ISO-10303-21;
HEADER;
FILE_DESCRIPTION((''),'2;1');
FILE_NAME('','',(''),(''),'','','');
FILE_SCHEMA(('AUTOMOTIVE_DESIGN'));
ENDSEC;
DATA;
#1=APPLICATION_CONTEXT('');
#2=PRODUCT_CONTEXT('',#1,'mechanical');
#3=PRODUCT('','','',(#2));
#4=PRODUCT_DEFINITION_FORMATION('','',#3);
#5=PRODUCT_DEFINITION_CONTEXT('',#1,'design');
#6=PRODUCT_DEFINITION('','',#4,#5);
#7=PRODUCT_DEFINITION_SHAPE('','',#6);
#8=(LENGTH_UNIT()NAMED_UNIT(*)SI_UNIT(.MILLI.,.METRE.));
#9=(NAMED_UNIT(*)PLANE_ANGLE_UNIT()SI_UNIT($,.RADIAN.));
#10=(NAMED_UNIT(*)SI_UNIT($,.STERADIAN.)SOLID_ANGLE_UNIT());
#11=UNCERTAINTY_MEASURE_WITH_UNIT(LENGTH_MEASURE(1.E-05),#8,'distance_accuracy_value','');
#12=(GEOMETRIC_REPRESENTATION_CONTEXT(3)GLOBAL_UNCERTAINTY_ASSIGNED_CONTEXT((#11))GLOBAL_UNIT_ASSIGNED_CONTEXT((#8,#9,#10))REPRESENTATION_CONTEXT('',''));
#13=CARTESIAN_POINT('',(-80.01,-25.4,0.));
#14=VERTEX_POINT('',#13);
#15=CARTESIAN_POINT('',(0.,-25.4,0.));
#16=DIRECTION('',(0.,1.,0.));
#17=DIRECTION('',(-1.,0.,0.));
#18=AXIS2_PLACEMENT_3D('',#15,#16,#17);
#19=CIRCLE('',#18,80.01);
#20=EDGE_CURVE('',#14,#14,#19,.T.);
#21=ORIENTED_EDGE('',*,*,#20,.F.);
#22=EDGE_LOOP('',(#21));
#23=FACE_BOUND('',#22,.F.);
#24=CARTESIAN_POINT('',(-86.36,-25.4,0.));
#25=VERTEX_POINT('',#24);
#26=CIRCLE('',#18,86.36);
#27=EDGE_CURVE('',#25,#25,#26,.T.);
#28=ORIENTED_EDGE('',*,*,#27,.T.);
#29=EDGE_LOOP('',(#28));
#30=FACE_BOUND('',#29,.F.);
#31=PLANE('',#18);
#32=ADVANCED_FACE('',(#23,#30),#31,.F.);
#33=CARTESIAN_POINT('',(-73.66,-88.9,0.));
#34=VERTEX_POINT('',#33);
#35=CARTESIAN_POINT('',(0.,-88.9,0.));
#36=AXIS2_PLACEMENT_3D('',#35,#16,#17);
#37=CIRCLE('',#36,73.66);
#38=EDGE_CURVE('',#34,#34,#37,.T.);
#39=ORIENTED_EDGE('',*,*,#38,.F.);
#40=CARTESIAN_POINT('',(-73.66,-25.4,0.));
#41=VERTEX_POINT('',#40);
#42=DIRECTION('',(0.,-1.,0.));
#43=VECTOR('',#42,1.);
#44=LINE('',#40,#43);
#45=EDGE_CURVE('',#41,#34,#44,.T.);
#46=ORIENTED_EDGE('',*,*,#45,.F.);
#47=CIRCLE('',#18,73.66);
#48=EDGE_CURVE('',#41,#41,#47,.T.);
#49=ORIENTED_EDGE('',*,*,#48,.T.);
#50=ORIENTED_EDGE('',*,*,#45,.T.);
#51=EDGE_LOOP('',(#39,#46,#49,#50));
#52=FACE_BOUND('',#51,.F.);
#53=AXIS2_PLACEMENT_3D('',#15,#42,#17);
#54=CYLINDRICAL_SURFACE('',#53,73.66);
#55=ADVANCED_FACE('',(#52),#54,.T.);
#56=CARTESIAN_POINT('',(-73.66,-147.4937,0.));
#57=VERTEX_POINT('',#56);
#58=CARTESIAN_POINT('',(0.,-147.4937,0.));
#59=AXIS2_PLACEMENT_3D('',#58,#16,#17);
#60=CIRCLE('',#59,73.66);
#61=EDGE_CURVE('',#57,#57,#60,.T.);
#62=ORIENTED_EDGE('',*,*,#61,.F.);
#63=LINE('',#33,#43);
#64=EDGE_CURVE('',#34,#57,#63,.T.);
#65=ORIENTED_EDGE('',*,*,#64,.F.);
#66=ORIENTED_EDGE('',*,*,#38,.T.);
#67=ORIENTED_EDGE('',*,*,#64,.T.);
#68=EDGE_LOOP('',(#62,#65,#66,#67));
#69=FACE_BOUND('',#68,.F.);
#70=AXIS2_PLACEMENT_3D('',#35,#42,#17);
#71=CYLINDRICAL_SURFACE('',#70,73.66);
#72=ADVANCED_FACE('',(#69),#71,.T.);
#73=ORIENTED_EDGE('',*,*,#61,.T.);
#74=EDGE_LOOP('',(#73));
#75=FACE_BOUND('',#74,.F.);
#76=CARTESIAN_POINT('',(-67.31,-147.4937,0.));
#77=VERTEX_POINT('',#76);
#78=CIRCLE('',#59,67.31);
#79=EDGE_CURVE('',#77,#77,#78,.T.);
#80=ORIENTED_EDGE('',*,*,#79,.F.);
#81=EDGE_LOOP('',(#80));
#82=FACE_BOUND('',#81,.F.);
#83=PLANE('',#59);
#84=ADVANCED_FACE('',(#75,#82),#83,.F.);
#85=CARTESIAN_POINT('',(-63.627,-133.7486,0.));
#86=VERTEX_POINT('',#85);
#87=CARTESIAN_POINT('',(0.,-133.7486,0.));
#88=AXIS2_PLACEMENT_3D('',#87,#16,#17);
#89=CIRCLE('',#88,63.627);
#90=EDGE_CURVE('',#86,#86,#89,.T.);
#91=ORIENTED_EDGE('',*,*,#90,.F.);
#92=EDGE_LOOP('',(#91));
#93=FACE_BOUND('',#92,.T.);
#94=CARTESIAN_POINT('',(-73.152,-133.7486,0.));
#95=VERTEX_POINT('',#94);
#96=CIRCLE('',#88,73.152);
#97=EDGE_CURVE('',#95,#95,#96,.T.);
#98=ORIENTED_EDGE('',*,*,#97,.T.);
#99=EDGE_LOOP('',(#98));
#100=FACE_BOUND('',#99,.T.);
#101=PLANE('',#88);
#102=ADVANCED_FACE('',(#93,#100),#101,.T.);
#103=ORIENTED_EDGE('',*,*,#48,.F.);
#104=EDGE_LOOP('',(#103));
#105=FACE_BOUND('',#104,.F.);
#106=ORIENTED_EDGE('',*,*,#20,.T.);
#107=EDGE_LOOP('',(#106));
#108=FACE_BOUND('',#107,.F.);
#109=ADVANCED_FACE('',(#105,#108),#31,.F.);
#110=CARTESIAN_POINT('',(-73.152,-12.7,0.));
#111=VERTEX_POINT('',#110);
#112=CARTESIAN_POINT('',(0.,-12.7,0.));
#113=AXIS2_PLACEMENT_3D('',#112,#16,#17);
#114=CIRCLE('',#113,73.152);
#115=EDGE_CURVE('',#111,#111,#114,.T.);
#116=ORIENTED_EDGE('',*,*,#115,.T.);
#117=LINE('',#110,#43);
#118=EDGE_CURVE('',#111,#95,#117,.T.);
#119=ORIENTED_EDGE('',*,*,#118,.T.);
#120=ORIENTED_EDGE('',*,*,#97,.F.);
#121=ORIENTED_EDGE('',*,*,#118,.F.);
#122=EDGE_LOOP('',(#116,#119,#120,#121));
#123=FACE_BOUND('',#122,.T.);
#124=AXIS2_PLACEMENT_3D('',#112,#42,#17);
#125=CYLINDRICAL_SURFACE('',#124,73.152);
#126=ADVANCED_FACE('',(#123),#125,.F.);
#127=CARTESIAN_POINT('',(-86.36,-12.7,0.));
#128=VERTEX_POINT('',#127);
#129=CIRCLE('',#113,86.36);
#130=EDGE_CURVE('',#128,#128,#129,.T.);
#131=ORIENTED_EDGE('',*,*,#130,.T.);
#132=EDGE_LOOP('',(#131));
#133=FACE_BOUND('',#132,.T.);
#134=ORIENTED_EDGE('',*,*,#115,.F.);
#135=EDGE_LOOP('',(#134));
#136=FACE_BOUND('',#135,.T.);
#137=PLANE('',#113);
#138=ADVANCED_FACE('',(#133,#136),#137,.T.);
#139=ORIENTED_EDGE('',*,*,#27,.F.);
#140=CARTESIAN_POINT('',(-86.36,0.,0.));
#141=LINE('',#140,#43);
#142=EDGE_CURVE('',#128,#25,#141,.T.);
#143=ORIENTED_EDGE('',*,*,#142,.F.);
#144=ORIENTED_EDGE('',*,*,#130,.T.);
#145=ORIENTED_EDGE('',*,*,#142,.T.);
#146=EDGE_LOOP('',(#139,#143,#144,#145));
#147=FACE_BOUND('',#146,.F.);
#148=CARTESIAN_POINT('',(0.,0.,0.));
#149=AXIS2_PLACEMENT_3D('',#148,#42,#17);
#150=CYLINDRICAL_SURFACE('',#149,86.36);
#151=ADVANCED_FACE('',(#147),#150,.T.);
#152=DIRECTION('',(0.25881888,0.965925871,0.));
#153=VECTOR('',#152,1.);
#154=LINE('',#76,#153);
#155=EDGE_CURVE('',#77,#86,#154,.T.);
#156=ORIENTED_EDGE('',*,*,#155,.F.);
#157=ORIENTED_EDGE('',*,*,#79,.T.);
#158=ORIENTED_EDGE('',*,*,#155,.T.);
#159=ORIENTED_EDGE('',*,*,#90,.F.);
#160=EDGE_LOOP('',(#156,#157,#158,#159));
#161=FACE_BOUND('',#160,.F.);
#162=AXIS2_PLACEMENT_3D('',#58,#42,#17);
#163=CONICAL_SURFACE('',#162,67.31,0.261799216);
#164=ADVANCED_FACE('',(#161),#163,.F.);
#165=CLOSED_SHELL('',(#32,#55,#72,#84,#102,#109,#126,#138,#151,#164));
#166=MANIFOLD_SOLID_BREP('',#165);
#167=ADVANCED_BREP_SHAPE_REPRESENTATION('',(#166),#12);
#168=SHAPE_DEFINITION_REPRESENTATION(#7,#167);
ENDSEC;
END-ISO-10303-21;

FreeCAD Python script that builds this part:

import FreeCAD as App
import Part
import Sketcher

V = App.Vector
Q = App.Units.Quantity


def add_polygon(sketch, points):
    """Adds a closed chain of lines whose ends are joined by coincident constraints."""
    first, n = sketch.GeometryCount, len(points)
    for a, b in zip(points, points[1:] + points[:1]):
        sketch.addGeometry(Part.LineSegment(App.Vector(*a, 0), App.Vector(*b, 0)), False)
    for i in range(n):
        sketch.addConstraint(Sketcher.Constraint("Coincident", first + i, 2, first + (i + 1) % n, 1))

doc = App.newDocument("Part")
body = doc.addObject("PartDesign::Body", "Body")

sketch1 = body.newObject("Sketcher::SketchObject", "Sketch")
sketch1.AttachmentSupport = (doc.getObject("XY_Plane"), [""])
sketch1.MapMode = "FlatFace"
add_polygon(sketch1, [(-73, -13), (-86, -13), (-86, -25), (-74, -25), (-74, -147), (-67, -147), (-64, -134), (-73, -134)])
sketch1.addConstraint(Sketcher.Constraint("Horizontal", 0))
sketch1.addConstraint(Sketcher.Constraint("Vertical", 1))
sketch1.addConstraint(Sketcher.Constraint("Horizontal", 2))
sketch1.addConstraint(Sketcher.Constraint("Vertical", 3))
sketch1.addConstraint(Sketcher.Constraint("Horizontal", 4))
sketch1.addConstraint(Sketcher.Constraint("Horizontal", 6))
sketch1.addConstraint(Sketcher.Constraint("Vertical", 7))
sketch1.addConstraint(Sketcher.Constraint("Equal", 2, 1))
sketch1.addConstraint(Sketcher.Constraint("DistanceX", 2, 1, 2, 2, Q("0.5 in")))
sketch1.addConstraint(Sketcher.Constraint("DistanceY", 1, 2, -1, 1, Q("1 in")))
sketch1.addConstraint(Sketcher.Constraint("DistanceX", 4, 1, 4, 2, Q("0.25 in")))
sketch1.addConstraint(Sketcher.Constraint("DistanceX", 0, 2, -1, 1, Q("3.4 in")))
sketch1.addConstraint(Sketcher.Constraint("DistanceX", 6, 2, 6, 1, Q("0.375 in")))
sketch1.addConstraint(Sketcher.Constraint("Angle", 5, Q("75 deg")))
sketch1.addConstraint(Sketcher.Constraint("DistanceX", 0, 2, 0, 1, Q("0.52 in")))
sketch1.addConstraint(Sketcher.Constraint("DistanceY", 7, 1, 7, 2, Q("4.7657 in")))
revolution = body.newObject("PartDesign::Revolution", "Revolution")
revolution.Profile = sketch1
revolution.ReferenceAxis = (sketch1, ["V_Axis"])
revolution.Angle = 360

doc.recompute()
